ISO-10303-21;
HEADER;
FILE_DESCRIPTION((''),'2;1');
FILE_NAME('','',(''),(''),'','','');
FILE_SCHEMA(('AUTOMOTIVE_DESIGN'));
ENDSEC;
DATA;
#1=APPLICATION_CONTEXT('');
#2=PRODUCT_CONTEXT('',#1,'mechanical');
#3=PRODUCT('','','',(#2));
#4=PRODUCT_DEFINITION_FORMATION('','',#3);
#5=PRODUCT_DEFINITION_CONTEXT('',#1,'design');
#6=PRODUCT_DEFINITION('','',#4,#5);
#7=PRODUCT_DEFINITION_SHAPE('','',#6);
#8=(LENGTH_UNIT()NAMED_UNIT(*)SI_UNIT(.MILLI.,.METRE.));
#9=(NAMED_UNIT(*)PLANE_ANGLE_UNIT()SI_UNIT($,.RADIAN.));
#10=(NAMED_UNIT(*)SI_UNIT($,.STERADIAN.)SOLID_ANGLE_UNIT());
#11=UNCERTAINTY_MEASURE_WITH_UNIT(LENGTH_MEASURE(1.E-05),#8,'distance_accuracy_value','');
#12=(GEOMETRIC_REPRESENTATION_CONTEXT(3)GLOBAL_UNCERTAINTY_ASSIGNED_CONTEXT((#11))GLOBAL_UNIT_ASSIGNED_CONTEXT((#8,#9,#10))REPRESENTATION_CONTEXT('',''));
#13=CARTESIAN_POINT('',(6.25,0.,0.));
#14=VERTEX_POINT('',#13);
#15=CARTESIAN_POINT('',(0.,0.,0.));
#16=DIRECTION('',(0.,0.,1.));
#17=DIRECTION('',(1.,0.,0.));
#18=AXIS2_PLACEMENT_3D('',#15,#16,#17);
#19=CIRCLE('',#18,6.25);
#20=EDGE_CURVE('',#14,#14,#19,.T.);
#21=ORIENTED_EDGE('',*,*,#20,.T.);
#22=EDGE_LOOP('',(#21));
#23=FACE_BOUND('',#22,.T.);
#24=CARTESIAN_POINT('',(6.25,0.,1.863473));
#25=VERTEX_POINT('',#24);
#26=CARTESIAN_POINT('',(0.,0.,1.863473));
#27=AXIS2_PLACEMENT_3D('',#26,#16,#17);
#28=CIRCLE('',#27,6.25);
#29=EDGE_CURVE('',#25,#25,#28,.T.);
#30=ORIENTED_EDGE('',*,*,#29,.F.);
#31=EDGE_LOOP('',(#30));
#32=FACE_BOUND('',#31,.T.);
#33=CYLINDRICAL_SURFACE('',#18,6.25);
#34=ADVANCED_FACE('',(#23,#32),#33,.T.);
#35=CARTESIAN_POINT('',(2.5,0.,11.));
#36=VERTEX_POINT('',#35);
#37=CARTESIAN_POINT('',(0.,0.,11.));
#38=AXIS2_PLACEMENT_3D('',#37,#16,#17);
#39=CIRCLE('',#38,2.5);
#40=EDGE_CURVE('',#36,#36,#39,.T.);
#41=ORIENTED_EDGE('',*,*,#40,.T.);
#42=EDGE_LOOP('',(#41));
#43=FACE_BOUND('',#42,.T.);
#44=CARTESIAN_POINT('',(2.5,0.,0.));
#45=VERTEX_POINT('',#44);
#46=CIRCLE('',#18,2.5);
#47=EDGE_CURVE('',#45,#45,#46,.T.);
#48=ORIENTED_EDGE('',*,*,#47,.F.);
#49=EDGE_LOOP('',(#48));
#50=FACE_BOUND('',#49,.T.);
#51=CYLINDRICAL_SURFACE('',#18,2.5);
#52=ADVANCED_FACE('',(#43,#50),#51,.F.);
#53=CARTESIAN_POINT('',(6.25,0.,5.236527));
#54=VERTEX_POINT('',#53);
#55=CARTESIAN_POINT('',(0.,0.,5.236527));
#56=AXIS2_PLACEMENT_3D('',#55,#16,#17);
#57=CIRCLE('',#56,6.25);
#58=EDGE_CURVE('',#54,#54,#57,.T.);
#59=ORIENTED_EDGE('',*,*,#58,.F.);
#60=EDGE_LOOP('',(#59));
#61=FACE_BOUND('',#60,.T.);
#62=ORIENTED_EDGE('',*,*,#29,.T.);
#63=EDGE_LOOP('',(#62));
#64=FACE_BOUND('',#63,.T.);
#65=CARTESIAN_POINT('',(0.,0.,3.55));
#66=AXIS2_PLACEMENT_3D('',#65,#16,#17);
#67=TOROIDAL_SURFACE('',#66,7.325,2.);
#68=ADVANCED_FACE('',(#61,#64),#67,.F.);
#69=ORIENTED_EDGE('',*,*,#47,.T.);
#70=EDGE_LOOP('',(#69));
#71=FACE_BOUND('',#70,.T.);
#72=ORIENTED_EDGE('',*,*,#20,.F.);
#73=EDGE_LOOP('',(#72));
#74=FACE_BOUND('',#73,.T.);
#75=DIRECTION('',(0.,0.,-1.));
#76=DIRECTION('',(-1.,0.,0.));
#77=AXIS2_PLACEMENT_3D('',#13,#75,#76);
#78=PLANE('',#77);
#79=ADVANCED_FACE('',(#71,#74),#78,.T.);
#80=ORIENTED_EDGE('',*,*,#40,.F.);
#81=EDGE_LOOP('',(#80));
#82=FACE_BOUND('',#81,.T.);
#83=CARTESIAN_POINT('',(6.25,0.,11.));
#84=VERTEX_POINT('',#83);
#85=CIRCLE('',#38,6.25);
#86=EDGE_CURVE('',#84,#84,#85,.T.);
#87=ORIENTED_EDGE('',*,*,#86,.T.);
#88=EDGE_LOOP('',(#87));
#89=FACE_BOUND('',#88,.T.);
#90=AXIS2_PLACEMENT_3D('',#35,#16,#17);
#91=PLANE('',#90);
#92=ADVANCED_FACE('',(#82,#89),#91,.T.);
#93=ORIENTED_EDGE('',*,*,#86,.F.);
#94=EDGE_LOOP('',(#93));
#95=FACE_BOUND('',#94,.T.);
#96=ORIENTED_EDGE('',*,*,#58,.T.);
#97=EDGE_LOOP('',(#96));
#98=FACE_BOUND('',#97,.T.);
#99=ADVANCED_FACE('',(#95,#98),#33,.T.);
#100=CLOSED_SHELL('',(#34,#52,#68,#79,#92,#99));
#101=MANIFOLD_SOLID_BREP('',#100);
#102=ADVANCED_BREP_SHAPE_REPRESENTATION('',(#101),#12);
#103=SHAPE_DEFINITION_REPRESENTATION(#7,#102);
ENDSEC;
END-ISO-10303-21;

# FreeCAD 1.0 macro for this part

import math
import FreeCAD as App
import Part
import Sketcher
from FreeCAD import Vector
Q = App.Units.Quantity

doc = App.newDocument("Part")
body = doc.addObject("PartDesign::Body", "Body")

sketch1 = body.newObject("Sketcher::SketchObject", "Sketch")
sketch1.AttachmentSupport = (doc.getObject("XZ_Plane"), [""])
sketch1.MapMode = "FlatFace"
sketch1.addGeometry([
    Part.LineSegment(Vector(6.25, 1.863473, 0), Vector(6.25, 0, 0)),
    Part.LineSegment(Vector(6.25, 0, 0), Vector(2.5, 0, 0)),
    Part.LineSegment(Vector(2.5, 0, 0), Vector(2.5, 11, 0)),
    Part.LineSegment(Vector(2.5, 11, 0), Vector(6.25, 11, 0)),
    Part.LineSegment(Vector(6.25, 11, 0), Vector(6.25, 5.236527, 0)),
    Part.ArcOfCircle(Part.Circle(Vector(7.325, 3.55, 0), Vector(0, 0, 1), 2), math.radians(122.513615), math.radians(237.486385)),
], False)
sketch1.addConstraint([
    Sketcher.Constraint("Coincident", 0, 2, 1, 1),
    Sketcher.Constraint("Coincident", 1, 2, 2, 1),
    Sketcher.Constraint("Coincident", 2, 2, 3, 1),
    Sketcher.Constraint("Coincident", 3, 2, 4, 1),
    Sketcher.Constraint("Coincident", 4, 2, 5, 1),
    Sketcher.Constraint("Coincident", 5, 2, 0, 1),
    Sketcher.Constraint("Vertical", 0),
    Sketcher.Constraint("Horizontal", 1),
    Sketcher.Constraint("Vertical", 2),
    Sketcher.Constraint("Horizontal", 3),
    Sketcher.Constraint("Vertical", 4),
    Sketcher.Constraint("PointOnObject", 0, 2, -1),
    Sketcher.Constraint("Vertical", 0, 2, 3, 2),
    Sketcher.Constraint("Radius", 5, Q("2 mm")),
    Sketcher.Constraint("DistanceY", 2, 1, 2, 2, Q("11 mm")),
    Sketcher.Constraint("DistanceX", 1, 2, 1, 1, Q("3.75 mm")),
    Sketcher.Constraint("DistanceX", -1, 1, 1, 2, Q("2.5 mm")),
    Sketcher.Constraint("DistanceY", -1, 1, 5, 3, Q("3.55 mm")),
    Sketcher.Constraint("DistanceX", -1, 1, 5, 3, Q("7.325 mm")),
])
revolution = body.newObject("PartDesign::Revolution", "Revolution")
revolution.Profile = sketch1
revolution.ReferenceAxis = (sketch1, ["V_Axis"])
revolution.Angle = 360

doc.recompute()
